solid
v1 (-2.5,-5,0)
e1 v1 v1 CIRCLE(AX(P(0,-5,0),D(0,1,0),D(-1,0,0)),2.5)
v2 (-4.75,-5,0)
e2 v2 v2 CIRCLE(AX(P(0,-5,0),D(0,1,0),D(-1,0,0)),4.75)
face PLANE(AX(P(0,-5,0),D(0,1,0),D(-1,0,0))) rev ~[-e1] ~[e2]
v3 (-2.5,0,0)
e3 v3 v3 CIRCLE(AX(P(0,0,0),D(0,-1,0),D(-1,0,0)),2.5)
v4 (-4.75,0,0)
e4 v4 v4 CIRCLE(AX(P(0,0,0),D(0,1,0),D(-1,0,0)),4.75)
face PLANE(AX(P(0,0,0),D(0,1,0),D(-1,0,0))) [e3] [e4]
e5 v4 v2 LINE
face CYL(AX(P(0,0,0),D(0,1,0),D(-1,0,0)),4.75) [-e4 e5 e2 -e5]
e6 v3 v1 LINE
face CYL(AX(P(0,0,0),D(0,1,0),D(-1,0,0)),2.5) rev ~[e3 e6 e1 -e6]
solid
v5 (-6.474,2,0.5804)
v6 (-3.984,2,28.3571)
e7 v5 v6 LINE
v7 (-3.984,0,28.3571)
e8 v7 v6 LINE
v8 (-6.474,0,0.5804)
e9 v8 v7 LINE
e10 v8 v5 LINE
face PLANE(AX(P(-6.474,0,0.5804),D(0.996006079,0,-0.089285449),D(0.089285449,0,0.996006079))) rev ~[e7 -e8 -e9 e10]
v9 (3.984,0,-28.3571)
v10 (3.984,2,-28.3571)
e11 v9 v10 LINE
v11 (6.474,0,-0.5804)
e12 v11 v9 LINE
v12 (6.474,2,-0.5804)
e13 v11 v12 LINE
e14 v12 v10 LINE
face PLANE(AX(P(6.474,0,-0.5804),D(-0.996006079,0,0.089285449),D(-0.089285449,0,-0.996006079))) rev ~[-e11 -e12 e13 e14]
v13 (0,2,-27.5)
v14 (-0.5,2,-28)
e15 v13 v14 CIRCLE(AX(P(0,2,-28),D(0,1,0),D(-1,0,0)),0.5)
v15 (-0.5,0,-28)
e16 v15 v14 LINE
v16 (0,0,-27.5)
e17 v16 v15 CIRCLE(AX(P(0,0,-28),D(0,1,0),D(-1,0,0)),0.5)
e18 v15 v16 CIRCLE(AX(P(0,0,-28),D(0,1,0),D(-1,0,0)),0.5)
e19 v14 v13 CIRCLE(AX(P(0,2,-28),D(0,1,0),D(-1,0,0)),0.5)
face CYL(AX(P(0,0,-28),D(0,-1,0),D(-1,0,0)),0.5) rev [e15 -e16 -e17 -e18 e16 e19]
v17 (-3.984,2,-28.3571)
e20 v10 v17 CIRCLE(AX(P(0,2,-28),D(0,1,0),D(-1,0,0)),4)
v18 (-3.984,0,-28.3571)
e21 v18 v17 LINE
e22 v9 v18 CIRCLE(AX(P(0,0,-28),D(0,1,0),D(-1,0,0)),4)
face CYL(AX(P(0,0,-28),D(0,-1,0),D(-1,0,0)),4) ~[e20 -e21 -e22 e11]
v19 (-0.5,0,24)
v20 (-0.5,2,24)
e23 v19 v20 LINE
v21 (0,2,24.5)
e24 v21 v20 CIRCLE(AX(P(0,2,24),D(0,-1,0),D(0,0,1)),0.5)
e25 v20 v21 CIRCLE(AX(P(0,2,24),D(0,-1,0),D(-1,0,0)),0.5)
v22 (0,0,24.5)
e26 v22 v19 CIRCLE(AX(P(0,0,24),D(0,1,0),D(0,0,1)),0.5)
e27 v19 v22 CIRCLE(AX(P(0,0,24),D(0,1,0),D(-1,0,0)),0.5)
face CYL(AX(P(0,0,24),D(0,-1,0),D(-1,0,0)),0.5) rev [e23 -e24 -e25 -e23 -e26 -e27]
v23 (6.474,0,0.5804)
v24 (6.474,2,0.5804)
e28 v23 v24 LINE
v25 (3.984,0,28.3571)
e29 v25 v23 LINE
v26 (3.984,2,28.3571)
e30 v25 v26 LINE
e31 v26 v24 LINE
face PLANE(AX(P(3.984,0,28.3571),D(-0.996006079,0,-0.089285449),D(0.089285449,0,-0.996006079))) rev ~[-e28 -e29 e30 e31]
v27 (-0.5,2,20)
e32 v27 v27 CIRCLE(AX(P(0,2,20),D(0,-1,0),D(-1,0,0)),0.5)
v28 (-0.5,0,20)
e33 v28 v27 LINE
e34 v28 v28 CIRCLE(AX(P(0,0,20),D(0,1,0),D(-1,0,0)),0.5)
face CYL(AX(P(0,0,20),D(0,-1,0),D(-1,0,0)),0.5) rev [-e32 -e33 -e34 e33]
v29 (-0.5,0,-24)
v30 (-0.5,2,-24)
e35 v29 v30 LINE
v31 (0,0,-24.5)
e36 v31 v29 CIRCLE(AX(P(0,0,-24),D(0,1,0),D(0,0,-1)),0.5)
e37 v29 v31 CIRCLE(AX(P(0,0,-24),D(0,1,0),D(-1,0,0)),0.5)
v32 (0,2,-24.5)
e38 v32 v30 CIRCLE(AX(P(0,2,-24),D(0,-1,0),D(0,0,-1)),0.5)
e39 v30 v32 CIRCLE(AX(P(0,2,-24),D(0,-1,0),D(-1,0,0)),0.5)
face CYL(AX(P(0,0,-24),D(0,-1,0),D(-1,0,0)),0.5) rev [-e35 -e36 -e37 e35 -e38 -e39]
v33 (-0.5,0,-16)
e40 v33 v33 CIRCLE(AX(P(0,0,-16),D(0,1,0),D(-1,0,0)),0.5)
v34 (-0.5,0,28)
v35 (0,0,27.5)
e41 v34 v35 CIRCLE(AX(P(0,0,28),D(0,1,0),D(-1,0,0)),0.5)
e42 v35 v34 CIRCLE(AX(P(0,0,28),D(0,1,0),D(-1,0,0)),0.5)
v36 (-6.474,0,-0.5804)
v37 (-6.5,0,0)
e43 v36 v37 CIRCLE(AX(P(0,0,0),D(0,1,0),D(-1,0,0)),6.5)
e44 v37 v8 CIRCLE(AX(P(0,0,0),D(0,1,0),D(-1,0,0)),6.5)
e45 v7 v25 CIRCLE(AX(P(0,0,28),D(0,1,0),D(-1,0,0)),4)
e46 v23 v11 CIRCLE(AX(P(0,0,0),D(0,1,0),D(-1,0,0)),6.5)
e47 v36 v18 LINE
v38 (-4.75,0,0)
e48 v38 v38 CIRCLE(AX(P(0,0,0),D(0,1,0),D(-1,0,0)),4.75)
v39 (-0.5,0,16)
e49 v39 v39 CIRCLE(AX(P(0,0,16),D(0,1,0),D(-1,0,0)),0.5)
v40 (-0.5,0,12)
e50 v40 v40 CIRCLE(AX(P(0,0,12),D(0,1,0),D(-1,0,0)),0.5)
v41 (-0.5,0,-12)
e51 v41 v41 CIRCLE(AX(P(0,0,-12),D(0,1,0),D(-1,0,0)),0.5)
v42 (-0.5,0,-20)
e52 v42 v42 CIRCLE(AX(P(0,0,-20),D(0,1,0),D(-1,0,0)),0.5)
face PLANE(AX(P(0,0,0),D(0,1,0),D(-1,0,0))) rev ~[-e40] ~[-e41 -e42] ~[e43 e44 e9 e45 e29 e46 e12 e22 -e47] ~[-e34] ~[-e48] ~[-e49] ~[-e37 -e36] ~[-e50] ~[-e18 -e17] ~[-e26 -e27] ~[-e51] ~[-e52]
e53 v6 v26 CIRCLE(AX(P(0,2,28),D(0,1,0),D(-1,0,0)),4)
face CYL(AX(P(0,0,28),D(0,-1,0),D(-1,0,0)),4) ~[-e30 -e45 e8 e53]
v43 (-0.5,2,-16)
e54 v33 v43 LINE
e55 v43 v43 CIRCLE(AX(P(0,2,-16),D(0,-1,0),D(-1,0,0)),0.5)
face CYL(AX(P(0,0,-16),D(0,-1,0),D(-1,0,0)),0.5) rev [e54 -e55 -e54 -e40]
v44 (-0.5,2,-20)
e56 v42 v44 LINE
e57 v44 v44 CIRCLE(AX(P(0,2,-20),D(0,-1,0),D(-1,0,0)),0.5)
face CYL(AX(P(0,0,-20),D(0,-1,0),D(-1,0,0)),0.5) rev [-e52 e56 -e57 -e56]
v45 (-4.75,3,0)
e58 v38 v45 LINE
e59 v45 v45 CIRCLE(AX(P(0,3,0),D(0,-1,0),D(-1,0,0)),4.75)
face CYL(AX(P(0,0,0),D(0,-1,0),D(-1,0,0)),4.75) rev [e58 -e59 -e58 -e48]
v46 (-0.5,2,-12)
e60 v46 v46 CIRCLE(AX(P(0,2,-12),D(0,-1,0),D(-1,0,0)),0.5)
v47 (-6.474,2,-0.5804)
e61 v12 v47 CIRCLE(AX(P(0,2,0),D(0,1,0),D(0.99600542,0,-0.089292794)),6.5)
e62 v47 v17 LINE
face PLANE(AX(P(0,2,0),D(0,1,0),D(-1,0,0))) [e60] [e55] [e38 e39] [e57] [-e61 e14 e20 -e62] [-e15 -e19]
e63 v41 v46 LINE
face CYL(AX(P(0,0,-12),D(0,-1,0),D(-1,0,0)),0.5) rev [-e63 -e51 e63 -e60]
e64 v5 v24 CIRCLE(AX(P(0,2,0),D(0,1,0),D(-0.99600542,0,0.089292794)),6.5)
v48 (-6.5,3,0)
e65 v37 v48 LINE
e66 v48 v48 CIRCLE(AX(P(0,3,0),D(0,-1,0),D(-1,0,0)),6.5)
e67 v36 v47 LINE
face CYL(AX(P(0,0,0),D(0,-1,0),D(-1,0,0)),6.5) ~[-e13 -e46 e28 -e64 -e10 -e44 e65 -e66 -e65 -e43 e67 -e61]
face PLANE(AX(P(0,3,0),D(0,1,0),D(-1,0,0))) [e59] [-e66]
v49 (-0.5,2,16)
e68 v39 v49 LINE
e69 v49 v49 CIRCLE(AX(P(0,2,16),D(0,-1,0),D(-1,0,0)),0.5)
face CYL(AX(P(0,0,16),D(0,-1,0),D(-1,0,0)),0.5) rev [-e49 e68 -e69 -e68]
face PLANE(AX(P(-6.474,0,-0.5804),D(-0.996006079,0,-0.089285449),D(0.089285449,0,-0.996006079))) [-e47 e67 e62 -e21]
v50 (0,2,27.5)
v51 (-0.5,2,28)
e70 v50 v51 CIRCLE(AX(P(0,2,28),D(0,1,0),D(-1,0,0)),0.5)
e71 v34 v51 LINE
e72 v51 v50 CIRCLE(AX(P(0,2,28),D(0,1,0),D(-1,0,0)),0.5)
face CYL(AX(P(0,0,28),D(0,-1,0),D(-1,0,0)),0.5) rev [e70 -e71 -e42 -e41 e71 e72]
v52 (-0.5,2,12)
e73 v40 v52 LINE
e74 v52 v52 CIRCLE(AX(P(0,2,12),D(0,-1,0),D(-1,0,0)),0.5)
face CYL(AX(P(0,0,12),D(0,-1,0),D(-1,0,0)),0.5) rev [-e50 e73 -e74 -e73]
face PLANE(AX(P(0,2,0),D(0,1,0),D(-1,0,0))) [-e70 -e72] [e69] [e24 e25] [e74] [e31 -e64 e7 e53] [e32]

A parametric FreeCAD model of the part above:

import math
import FreeCAD as App
import Part
import Sketcher

V = App.Vector

doc = App.newDocument("Part")
body = doc.addObject("PartDesign::Body", "Body")
body.AllowCompound = True

sketch1 = body.newObject("Sketcher::SketchObject", "Sketch")
sketch1.AttachmentSupport = (doc.getObject("XZ_Plane"), [""])
sketch1.MapMode = "FlatFace"
sketch1.addGeometry([
    Part.ArcOfCircle(Part.Circle(V(0, 0, 0), V(0, 0, 1), 6.5), math.radians(5), math.radians(175)),
    Part.LineSegment(V(-6.5, 0.6, 0), V(-4, 28.4, 0)),
    Part.ArcOfCircle(Part.Circle(V(0, 28, 0), V(0, 0, 1), 4), math.radians(5), math.radians(175)),
    Part.LineSegment(V(4, 28.4, 0), V(6.5, 0.6, 0)),
    Part.Circle(V(0, 24, 0), V(0, 0, 1), 0.5),
    Part.Circle(V(0, 20, 0), V(0, 0, 1), 0.5),
    Part.Circle(V(0, 16, 0), V(0, 0, 1), 0.5),
    Part.Circle(V(0, 12, 0), V(0, 0, 1), 0.5),
    Part.Circle(V(0, 28, 0), V(0, 0, 1), 0.5),
    Part.ArcOfCircle(Part.Circle(V(0, 0, 0), V(0, 0, 1), 6.5), math.radians(-175), math.radians(-5)),
    Part.LineSegment(V(6.5, -0.6, 0), V(4, -28.4, 0)),
    Part.ArcOfCircle(Part.Circle(V(0, -28, 0), V(0, 0, 1), 4), math.radians(-175), math.radians(-5)),
    Part.LineSegment(V(-4, -28.4, 0), V(-6.5, -0.6, 0)),
    Part.Circle(V(0, -24, 0), V(0, 0, 1), 0.5),
    Part.Circle(V(0, -20, 0), V(0, 0, 1), 0.5),
    Part.Circle(V(0, -16, 0), V(0, 0, 1), 0.5),
    Part.Circle(V(0, -12, 0), V(0, 0, 1), 0.5),
    Part.Circle(V(0, -28, 0), V(0, 0, 1), 0.5),
], False)
sketch1.addConstraint([
    Sketcher.Constraint("Tangent", 0, 2, 1, 1),
    Sketcher.Constraint("Tangent", 1, 2, 2, 2),
    Sketcher.Constraint("Tangent", 2, 1, 3, 1),
    Sketcher.Constraint("Tangent", 3, 2, 0, 1),
    Sketcher.Constraint("Tangent", 9, 2, 10, 1),
    Sketcher.Constraint("Tangent", 10, 2, 11, 2),
    Sketcher.Constraint("Tangent", 11, 1, 12, 1),
    Sketcher.Constraint("Tangent", 12, 2, 9, 1),
    Sketcher.Constraint("Coincident", 0, 3, -1, 1),
    Sketcher.Constraint("Coincident", 9, 3, -1, 1),
    Sketcher.Constraint("Coincident", 8, 3, 2, 3),
    Sketcher.Constraint("Coincident", 17, 3, 11, 3),
    Sketcher.Constraint("Equal", 4, 5),
    Sketcher.Constraint("Equal", 5, 6),
    Sketcher.Constraint("Equal", 6, 7),
    Sketcher.Constraint("Equal", 7, 8),
    Sketcher.Constraint("Equal", 0, 9),
    Sketcher.Constraint("Equal", 2, 11),
    Sketcher.Constraint("Equal", 8, 13),
    Sketcher.Constraint("Equal", 13, 14),
    Sketcher.Constraint("Equal", 14, 15),
    Sketcher.Constraint("Equal", 15, 16),
    Sketcher.Constraint("Equal", 16, 17),
    Sketcher.Constraint("Symmetric", 2, 3, 11, 3, -1, 1),
    Sketcher.Constraint("Symmetric", 4, 3, 13, 3, -1, 1),
    Sketcher.Constraint("Symmetric", 5, 3, 14, 3, -1, 1),
    Sketcher.Constraint("Symmetric", 6, 3, 15, 3, -1, 1),
    Sketcher.Constraint("Symmetric", 7, 3, 16, 3, -1, 1),
    Sketcher.Constraint("PointOnObject", 2, 3, -2),
    Sketcher.Constraint("PointOnObject", 4, 3, -2),
    Sketcher.Constraint("PointOnObject", 5, 3, -2),
    Sketcher.Constraint("PointOnObject", 6, 3, -2),
    Sketcher.Constraint("PointOnObject", 7, 3, -2),
    Sketcher.Constraint("Diameter", 4, 1.0),
    Sketcher.Constraint("Radius", 2, 4.0),
    Sketcher.Constraint("Radius", 0, 6.5),
    Sketcher.Constraint("DistanceY", -1, 1, 2, 3, 28.0),
    Sketcher.Constraint("DistanceY", 4, 3, 2, 3, 4.0),
    Sketcher.Constraint("DistanceY", 5, 3, 4, 3, 4.0),
    Sketcher.Constraint("DistanceY", 6, 3, 5, 3, 4.0),
    Sketcher.Constraint("DistanceY", 7, 3, 6, 3, 4.0),
])
pad1 = body.newObject("PartDesign::Pad", "Pad")
pad1.Profile = sketch1
pad1.Length = 2
pad1.Reversed = True

sketch2 = body.newObject("Sketcher::SketchObject", "Sketch001")
sketch2.AttachmentSupport = (doc.getObject("XZ_Plane"), [""])
sketch2.MapMode = "FlatFace"
sketch2.addGeometry([
    Part.Circle(V(0, 0, 0), V(0, 0, 1), 6.5),
    Part.Circle(V(0, 0, 0), V(0, 0, 1), 4.8),
], False)
sketch2.addConstraint([
    Sketcher.Constraint("Coincident", 0, 3, -1, 1),
    Sketcher.Constraint("Coincident", 1, 3, -1, 1),
    Sketcher.Constraint("Diameter", 0, 13.0),
    Sketcher.Constraint("Diameter", 1, 9.5),
])
pad2 = body.newObject("PartDesign::Pad", "Pad001")
pad2.Profile = sketch2
pad2.Length = 3
pad2.Reversed = True

sketch3 = body.newObject("Sketcher::SketchObject", "Sketch002")
sketch3.AttachmentSupport = (doc.getObject("XZ_Plane"), [""])
sketch3.MapMode = "FlatFace"
sketch3.addGeometry([
    Part.Circle(V(0, 0, 0), V(0, 0, 1), 4.8),
    Part.Circle(V(0, 0, 0), V(0, 0, 1), 2.5),
], False)
sketch3.addConstraint([
    Sketcher.Constraint("Coincident", 0, 3, -1, 1),
    Sketcher.Constraint("Coincident", 1, 3, -1, 1),
    Sketcher.Constraint("Diameter", 1, 5.0),
    Sketcher.Constraint("Diameter", 0, 9.5),
])
pad3 = body.newObject("PartDesign::Pad", "Pad002")
pad3.Profile = sketch3
pad3.Length = 5

doc.recompute()
